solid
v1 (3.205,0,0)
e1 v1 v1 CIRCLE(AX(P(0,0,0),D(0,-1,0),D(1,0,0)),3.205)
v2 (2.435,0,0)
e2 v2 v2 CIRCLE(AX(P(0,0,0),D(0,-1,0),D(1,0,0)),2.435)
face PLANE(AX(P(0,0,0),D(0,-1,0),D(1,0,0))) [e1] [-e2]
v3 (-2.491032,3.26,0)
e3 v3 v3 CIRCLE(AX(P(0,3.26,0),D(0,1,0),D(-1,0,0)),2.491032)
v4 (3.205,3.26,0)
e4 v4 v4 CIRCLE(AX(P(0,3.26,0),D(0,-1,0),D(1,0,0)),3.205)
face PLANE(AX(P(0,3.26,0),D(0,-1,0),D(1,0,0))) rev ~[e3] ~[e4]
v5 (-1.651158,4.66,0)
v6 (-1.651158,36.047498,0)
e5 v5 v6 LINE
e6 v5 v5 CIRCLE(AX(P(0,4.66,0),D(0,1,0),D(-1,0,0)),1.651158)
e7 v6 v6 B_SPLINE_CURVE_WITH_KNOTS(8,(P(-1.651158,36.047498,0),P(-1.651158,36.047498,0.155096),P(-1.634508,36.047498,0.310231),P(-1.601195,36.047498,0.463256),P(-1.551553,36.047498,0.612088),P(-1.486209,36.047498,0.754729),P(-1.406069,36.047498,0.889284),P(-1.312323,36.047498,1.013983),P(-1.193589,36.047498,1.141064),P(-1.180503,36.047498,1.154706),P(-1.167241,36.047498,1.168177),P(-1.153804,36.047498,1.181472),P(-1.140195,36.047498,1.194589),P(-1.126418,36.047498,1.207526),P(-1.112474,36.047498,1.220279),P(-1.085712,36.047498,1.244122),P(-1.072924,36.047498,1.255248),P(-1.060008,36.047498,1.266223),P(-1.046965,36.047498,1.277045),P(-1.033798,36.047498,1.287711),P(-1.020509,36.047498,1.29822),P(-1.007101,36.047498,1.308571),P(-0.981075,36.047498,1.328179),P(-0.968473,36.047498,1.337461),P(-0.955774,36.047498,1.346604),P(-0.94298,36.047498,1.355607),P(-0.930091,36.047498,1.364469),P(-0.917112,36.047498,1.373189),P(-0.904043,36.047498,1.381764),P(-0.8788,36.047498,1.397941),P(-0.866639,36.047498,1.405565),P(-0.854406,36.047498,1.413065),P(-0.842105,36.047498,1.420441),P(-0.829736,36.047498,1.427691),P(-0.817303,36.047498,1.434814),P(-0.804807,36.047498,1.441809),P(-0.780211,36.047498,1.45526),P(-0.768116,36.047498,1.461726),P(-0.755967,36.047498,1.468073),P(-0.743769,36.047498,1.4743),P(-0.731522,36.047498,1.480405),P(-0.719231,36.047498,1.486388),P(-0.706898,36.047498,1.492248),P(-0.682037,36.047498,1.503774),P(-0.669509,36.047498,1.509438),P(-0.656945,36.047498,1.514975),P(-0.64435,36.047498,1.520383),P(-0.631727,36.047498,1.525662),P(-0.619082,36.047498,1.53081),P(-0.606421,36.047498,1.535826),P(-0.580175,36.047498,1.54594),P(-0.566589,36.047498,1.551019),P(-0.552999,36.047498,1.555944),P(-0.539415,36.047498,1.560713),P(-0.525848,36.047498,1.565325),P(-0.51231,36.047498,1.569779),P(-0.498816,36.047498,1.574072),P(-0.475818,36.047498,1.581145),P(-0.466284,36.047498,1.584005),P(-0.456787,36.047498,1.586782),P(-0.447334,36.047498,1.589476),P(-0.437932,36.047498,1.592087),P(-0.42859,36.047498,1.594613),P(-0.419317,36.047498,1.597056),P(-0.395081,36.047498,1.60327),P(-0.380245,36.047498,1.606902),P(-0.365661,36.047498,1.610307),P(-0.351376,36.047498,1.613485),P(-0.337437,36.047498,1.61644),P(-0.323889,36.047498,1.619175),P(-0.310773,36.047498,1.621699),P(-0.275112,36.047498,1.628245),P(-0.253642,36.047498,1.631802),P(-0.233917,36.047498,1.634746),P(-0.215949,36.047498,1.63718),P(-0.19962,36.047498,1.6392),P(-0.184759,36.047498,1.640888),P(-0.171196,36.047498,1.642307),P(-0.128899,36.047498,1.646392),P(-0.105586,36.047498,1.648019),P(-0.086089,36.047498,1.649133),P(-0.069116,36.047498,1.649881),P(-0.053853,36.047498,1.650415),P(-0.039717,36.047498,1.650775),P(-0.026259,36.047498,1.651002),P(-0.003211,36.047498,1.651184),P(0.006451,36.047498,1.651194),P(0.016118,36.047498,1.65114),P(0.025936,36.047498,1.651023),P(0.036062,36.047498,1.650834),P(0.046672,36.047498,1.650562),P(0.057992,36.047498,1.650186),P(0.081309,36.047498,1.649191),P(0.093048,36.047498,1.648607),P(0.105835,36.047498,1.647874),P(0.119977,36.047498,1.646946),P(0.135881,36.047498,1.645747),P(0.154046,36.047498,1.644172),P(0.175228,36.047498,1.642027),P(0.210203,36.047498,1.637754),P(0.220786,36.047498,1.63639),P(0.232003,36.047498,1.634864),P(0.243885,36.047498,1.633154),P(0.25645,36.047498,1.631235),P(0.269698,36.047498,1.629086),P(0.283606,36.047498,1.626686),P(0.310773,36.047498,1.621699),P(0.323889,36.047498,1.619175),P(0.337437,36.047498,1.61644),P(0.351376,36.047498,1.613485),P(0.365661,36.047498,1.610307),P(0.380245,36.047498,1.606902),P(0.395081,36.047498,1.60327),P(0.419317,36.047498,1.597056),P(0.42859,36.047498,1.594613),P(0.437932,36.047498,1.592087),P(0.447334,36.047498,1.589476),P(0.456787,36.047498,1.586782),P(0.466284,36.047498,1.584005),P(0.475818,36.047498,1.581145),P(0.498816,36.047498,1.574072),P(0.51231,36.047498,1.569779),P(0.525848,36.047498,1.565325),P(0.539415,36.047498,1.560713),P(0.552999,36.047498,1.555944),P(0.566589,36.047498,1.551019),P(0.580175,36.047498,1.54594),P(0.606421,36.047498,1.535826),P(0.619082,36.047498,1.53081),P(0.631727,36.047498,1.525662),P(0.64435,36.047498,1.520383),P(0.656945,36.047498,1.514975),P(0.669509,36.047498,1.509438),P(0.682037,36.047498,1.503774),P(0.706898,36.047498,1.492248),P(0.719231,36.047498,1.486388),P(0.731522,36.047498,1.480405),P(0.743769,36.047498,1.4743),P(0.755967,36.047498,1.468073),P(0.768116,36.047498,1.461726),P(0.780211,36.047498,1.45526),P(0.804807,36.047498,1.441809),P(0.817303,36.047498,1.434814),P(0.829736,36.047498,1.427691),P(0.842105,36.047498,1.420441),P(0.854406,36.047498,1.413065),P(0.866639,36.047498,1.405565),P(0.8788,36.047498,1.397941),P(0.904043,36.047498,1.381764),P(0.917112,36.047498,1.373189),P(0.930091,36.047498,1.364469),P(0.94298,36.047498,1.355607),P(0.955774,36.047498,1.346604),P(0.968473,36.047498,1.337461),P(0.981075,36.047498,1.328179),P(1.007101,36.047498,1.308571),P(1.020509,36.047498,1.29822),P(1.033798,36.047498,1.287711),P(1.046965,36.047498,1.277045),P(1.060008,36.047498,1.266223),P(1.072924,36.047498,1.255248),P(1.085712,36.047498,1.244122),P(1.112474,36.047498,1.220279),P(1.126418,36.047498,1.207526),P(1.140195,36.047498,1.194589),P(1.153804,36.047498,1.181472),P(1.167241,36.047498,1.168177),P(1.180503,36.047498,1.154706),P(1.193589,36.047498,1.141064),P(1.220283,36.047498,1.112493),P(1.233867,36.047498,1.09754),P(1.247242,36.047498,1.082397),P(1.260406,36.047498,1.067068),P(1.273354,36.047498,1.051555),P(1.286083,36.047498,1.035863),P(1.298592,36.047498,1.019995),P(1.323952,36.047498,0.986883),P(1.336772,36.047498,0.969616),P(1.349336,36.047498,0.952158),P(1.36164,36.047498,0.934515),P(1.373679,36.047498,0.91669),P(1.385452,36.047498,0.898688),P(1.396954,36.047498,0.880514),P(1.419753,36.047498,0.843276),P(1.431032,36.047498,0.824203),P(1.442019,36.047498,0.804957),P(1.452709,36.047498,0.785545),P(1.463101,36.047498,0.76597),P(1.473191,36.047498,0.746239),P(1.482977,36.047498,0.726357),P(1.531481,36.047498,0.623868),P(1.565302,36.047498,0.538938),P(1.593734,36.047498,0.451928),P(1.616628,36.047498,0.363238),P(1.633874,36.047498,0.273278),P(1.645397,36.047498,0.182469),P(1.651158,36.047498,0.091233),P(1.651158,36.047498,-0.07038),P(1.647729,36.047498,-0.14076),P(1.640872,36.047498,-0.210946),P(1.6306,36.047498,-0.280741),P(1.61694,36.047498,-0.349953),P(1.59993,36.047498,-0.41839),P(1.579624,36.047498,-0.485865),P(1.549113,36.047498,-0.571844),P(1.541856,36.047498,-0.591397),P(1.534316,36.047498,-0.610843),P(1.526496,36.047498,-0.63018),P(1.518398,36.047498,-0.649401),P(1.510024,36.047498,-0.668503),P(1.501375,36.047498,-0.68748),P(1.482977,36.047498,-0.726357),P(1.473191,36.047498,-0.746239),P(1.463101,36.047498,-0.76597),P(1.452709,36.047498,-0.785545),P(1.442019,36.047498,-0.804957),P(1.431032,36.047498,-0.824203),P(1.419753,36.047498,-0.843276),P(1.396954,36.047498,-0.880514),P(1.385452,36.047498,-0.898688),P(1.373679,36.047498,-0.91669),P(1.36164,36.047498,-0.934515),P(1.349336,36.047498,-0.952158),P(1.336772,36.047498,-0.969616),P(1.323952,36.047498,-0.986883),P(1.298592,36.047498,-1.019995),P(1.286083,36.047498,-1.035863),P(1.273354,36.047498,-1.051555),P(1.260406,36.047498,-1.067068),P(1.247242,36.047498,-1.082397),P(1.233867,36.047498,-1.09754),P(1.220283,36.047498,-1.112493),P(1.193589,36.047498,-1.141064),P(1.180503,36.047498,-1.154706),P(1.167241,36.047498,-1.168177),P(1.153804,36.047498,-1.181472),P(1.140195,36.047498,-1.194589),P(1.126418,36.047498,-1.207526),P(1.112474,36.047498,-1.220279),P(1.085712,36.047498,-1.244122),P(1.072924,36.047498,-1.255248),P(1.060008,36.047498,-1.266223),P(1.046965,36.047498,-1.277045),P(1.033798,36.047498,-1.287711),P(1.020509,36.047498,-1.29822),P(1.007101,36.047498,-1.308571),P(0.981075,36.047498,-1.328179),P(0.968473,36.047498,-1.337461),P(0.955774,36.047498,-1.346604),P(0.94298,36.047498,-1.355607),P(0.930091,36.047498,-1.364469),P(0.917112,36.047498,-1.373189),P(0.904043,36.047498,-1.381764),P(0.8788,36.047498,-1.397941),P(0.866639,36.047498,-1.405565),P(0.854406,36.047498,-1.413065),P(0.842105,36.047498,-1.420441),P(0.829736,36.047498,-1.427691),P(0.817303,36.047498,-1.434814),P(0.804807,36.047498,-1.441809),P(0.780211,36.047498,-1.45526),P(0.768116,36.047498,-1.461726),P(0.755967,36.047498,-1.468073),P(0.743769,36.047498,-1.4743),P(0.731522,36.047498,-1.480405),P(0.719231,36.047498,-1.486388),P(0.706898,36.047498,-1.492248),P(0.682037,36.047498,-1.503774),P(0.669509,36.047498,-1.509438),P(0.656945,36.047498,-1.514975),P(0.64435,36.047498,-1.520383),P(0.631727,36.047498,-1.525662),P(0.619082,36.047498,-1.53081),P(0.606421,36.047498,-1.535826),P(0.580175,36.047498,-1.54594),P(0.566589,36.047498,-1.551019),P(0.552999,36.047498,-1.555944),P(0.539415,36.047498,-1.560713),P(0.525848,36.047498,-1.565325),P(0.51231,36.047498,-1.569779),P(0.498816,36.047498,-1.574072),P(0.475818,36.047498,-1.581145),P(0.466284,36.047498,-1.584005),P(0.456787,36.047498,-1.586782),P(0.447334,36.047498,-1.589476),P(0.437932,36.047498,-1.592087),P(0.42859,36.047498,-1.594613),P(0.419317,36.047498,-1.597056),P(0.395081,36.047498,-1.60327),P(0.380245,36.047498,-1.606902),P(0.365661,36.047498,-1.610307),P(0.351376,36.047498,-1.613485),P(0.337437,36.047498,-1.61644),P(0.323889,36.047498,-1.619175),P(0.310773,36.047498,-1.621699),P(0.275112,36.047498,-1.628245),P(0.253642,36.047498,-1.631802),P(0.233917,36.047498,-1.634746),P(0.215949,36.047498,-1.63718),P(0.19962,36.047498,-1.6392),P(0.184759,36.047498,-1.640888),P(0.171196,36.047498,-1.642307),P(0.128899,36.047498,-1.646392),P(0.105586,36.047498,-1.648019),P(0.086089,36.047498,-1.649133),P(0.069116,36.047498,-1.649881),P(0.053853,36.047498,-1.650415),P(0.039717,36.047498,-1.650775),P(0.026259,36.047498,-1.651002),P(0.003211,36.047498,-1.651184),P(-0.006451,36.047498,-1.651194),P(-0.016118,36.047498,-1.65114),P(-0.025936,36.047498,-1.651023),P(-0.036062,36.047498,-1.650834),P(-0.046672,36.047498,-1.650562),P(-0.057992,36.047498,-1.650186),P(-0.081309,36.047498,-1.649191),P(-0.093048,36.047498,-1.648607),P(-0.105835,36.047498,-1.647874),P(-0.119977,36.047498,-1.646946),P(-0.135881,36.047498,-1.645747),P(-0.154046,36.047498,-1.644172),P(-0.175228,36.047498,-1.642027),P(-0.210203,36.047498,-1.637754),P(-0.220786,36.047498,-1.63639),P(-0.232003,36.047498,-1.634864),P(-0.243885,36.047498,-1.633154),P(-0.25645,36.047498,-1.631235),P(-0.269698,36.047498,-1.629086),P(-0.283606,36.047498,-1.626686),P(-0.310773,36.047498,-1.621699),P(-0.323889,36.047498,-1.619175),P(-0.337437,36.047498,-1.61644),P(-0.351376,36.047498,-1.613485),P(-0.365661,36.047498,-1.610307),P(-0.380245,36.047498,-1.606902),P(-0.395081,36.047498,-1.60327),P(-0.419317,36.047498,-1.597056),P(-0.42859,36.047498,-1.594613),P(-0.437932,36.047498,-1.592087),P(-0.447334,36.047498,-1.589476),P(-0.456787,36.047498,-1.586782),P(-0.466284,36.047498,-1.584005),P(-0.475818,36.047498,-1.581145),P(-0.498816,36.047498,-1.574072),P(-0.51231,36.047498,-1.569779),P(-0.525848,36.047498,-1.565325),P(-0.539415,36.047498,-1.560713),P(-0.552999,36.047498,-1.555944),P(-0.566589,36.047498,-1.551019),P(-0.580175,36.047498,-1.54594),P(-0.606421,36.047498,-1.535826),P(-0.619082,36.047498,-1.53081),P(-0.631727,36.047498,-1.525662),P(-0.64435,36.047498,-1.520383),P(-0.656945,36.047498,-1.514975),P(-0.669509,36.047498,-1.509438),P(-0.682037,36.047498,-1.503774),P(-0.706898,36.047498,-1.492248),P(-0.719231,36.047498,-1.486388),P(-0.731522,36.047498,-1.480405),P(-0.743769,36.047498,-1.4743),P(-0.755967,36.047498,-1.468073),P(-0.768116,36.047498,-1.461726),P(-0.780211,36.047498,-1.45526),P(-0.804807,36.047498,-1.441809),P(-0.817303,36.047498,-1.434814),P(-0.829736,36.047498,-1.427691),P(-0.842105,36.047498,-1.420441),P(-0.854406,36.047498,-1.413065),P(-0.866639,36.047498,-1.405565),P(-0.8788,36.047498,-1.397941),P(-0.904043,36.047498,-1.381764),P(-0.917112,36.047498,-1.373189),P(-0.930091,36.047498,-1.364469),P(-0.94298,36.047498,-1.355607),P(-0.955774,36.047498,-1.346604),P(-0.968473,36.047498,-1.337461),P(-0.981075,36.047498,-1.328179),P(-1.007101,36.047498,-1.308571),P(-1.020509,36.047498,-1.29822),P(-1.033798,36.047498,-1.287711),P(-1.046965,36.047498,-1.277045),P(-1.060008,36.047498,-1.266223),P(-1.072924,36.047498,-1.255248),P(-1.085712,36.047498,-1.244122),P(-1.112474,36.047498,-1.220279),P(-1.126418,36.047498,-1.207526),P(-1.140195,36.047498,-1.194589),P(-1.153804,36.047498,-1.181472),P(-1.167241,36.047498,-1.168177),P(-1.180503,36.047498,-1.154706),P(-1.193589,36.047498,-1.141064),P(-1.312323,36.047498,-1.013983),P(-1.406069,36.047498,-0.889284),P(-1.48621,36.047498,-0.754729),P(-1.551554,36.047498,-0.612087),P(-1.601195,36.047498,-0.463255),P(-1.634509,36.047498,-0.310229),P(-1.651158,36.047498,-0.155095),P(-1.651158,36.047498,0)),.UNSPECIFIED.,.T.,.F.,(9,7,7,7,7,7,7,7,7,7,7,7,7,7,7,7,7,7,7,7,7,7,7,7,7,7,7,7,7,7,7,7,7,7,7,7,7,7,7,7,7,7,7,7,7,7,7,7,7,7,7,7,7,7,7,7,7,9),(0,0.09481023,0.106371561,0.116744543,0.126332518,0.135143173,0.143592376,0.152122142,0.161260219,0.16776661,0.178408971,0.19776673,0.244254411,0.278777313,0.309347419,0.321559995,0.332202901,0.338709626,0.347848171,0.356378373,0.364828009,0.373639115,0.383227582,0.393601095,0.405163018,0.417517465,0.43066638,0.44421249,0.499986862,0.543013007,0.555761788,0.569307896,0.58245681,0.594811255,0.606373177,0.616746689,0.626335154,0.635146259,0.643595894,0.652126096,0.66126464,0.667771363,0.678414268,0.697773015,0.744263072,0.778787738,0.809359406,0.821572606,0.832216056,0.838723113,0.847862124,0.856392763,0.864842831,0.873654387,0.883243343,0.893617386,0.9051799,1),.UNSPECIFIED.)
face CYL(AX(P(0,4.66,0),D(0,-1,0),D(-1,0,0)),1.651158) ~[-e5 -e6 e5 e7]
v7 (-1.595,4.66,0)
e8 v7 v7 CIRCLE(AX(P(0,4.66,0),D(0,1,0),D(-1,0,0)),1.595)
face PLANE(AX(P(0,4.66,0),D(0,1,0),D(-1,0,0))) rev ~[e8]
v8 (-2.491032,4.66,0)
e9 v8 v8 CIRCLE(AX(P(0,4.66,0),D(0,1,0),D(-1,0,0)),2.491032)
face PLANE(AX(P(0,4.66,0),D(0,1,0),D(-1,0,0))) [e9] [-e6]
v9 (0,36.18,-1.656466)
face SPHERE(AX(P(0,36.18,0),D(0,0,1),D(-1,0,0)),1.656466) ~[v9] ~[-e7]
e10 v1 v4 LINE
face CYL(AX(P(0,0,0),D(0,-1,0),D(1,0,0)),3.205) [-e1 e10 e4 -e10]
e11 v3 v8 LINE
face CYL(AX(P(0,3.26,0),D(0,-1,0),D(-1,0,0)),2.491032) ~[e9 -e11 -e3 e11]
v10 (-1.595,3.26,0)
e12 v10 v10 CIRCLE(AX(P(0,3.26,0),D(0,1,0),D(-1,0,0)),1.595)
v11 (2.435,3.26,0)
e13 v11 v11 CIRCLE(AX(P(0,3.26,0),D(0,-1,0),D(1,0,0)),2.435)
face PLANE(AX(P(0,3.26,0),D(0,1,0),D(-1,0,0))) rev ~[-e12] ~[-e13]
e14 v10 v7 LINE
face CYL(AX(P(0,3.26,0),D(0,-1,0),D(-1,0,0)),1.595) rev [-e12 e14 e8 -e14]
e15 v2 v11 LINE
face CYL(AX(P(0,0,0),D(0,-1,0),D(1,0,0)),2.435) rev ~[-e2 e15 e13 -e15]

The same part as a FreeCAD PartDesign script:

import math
import FreeCAD as App
import Part
import Sketcher
from FreeCAD import Vector
Q = App.Units.Quantity

doc = App.newDocument("Part")
body = doc.addObject("PartDesign::Body", "Body")

# Sketch on XZ plane
sketch1 = doc.addObject("Sketcher::SketchObject", "Sketch")
body.addObject(sketch1)
sketch1.AttachmentSupport = (doc.XZ_Plane, [""])
sketch1.MapMode = "FlatFace"
sketch1.addGeometry(Part.Circle(Vector(0, 0, 0), Vector(0, 0, 1), 3.2), False)
sketch1.addGeometry(Part.Circle(Vector(0, 0, 0), Vector(0, 0, 1), 2.4), False)
sketch1.addConstraint(Sketcher.Constraint("Coincident", 0, 3, -1, 1))
sketch1.addConstraint(Sketcher.Constraint("Coincident", 1, 3, -1, 1))
sketch1.addConstraint(Sketcher.Constraint("Diameter", 0, Q("6.41 mm")))
sketch1.addConstraint(Sketcher.Constraint("Diameter", 1, Q("4.87 mm")))
pad1 = doc.addObject("PartDesign::Pad", "Pad")
body.addObject(pad1)
pad1.Profile = sketch1
pad1.Length = 3.26
pad1.Reversed = True

# Sketch on XZ plane
sketch2 = doc.addObject("Sketcher::SketchObject", "Sketch001")
body.addObject(sketch2)
sketch2.AttachmentSupport = (doc.XZ_Plane, [""])
sketch2.MapMode = "FlatFace"
sketch2.AttachmentOffset = App.Placement(Vector(0, 0, -3.26), App.Rotation())
sketch2.addGeometry(Part.Circle(Vector(0, 0, 0), Vector(0, 0, 1), 2.5), False)
sketch2.addGeometry(Part.Circle(Vector(0, 0, 0), Vector(0, 0, 1), 1.6), False)
sketch2.addConstraint(Sketcher.Constraint("Coincident", 0, 3, -1, 1))
sketch2.addConstraint(Sketcher.Constraint("Coincident", 1, 3, -1, 1))
sketch2.addConstraint(Sketcher.Constraint("Diameter", 1, Q("3.19 mm")))
sketch2.addConstraint(Sketcher.Constraint("Diameter", 0, Q("4.982064 mm")))
pad2 = doc.addObject("PartDesign::Pad", "Pad001")
body.addObject(pad2)
pad2.Profile = sketch2
pad2.Length = 1.4
pad2.Reversed = True

# Sketch on XZ plane
sketch3 = doc.addObject("Sketcher::SketchObject", "Sketch002")
body.addObject(sketch3)
sketch3.AttachmentSupport = (doc.XZ_Plane, [""])
sketch3.MapMode = "FlatFace"
sketch3.AttachmentOffset = App.Placement(Vector(0, 0, -4.66), App.Rotation())
sketch3.addGeometry(Part.Circle(Vector(0, 0, 0), Vector(0, 0, 1), 1.7), False)
sketch3.addConstraint(Sketcher.Constraint("Coincident", 0, 3, -1, 1))
sketch3.addConstraint(Sketcher.Constraint("Diameter", 0, Q("3.302316 mm")))
pad3 = doc.addObject("PartDesign::Pad", "Pad002")
body.addObject(pad3)
pad3.Profile = sketch3
pad3.Length = 31.52
pad3.Reversed = True

# Sketch on XZ plane
sketch4 = doc.addObject("Sketcher::SketchObject", "Sketch003")
body.addObject(sketch4)
sketch4.AttachmentSupport = (doc.XZ_Plane, [""])
sketch4.MapMode = "FlatFace"
sketch4.AttachmentOffset = App.Placement(Vector(0, 0, -36.18), App.Rotation())
sketch4.addGeometry(Part.LineSegment(Vector(0, 1.7, 0), Vector(0, -1.7, 0)), False)
sketch4.addGeometry(Part.ArcOfCircle(Part.Circle(Vector(0, 0, 0), Vector(0, 0, 1), 1.7), math.radians(90), math.radians(270)), False)
sketch4.addConstraint(Sketcher.Constraint("Coincident", 0, 1, 1, 1))
sketch4.addConstraint(Sketcher.Constraint("Coincident", 1, 2, 0, 2))
sketch4.addConstraint(Sketcher.Constraint("Vertical", 0))
sketch4.addConstraint(Sketcher.Constraint("Coincident", 1, 3, -1, 1))
sketch4.addConstraint(Sketcher.Constraint("PointOnObject", 0, 1, -2))
sketch4.addConstraint(Sketcher.Constraint("Radius", 1, Q("1.656466 mm")))
revolution = doc.addObject("PartDesign::Revolution", "Revolution")
body.addObject(revolution)
revolution.Profile = sketch4
revolution.ReferenceAxis = (sketch4, ["V_Axis"])
revolution.Angle = 360

doc.recompute()
